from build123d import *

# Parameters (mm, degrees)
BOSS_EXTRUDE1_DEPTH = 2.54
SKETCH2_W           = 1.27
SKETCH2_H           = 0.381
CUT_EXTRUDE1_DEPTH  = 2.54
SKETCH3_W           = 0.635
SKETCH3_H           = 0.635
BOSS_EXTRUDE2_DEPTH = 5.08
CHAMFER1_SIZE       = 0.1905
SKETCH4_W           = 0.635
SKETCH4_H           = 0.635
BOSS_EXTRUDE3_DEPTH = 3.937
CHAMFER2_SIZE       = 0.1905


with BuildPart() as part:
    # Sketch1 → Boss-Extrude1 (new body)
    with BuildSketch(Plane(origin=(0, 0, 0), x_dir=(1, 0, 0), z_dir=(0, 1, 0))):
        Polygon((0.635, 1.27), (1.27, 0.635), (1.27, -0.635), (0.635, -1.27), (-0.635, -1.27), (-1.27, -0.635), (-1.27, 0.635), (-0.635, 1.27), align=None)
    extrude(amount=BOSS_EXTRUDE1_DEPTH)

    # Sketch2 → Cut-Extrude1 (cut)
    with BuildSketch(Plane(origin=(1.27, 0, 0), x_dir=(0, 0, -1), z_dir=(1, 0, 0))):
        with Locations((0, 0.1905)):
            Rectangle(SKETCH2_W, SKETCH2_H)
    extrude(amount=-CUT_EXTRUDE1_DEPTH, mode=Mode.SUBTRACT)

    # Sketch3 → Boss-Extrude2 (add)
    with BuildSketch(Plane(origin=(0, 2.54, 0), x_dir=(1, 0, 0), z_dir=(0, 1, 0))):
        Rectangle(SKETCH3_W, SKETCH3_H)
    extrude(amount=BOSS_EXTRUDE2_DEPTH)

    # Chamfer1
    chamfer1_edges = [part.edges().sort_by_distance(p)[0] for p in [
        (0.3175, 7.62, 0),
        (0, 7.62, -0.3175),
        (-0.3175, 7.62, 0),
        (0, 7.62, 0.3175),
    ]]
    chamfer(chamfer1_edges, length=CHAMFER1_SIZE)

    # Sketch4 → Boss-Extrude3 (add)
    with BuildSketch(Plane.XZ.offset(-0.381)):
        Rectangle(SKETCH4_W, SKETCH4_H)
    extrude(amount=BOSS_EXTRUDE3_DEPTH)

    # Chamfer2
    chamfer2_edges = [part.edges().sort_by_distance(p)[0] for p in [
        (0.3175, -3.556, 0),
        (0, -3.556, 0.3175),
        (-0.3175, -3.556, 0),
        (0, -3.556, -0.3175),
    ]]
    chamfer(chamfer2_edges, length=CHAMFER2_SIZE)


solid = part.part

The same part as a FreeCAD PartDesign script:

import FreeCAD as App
import Part
import Sketcher
from FreeCAD import Vector
Q = App.Units.Quantity


def edges_at(feature, points):
    """Names of the edges that pass closest to the given points."""
    edges = feature.Shape.Edges
    near = lambda p: min(range(len(edges)), key=lambda i: edges[i].distToShape(Part.Vertex(*p))[0])
    return sorted({f"Edge{near(p) + 1}" for p in points})

doc = App.newDocument("Part")
body = doc.addObject("PartDesign::Body", "Body")

# Sketch on XZ plane
sketch1 = doc.addObject("Sketcher::SketchObject", "Sketch")
body.addObject(sketch1)
sketch1.AttachmentSupport = (doc.XZ_Plane, [""])
sketch1.MapMode = "FlatFace"
sketch1.addGeometry([
    Part.LineSegment(Vector(1.3, -0.6, 0), Vector(0.6, -1.3, 0)),  # 0
    Part.LineSegment(Vector(0.6, -1.3, 0), Vector(-0.6, -1.3, 0)),  # 1
    Part.LineSegment(Vector(-0.6, -1.3, 0), Vector(-1.3, -0.6, 0)),  # 2
    Part.LineSegment(Vector(-1.3, -0.6, 0), Vector(-1.3, 0.6, 0)),  # 3
    Part.LineSegment(Vector(-1.3, 0.6, 0), Vector(-0.6, 1.3, 0)),  # 4
    Part.LineSegment(Vector(-0.6, 1.3, 0), Vector(0.6, 1.3, 0)),  # 5
    Part.LineSegment(Vector(0.6, 1.3, 0), Vector(1.3, 0.6, 0)),  # 6
    Part.LineSegment(Vector(1.3, 0.6, 0), Vector(1.3, -0.6, 0)),  # 7
], False)
sketch1.addConstraint([
    Sketcher.Constraint("Coincident", 0, 2, 1, 1),
    Sketcher.Constraint("Coincident", 1, 2, 2, 1),
    Sketcher.Constraint("Coincident", 2, 2, 3, 1),
    Sketcher.Constraint("Coincident", 3, 2, 4, 1),
    Sketcher.Constraint("Coincident", 4, 2, 5, 1),
    Sketcher.Constraint("Coincident", 5, 2, 6, 1),
    Sketcher.Constraint("Coincident", 6, 2, 7, 1),
    Sketcher.Constraint("Coincident", 7, 2, 0, 1),
    Sketcher.Constraint("Horizontal", 1),
    Sketcher.Constraint("Vertical", 3),
    Sketcher.Constraint("Horizontal", 5),
    Sketcher.Constraint("Vertical", 7),
    Sketcher.Constraint("Symmetric", 0, 2, 4, 2, -1, 1),
    Sketcher.Constraint("Symmetric", 2, 2, 6, 2, -1, 1),
    Sketcher.Constraint("Perpendicular", 0, 2),
    Sketcher.Constraint("Perpendicular", 2, 4),
    Sketcher.Constraint("Perpendicular", 4, 6),
    Sketcher.Constraint("Horizontal", 3, 2, 6, 2),
    Sketcher.Constraint("Vertical", 1, 2, 4, 2),
    Sketcher.Constraint("Equal", 5, 3),
    Sketcher.Constraint("DistanceX", 1, 2, 1, 1, Q("0.05 in")),
    Sketcher.Constraint("DistanceY", 1, 2, 4, 2, Q("0.1 in")),
])
pad1 = doc.addObject("PartDesign::Pad", "Pad")
body.addObject(pad1)
pad1.Profile = sketch1
pad1.Length = Q("0.1 in")
pad1.Reversed = True

# Sketch on YZ plane
sketch2 = doc.addObject("Sketcher::SketchObject", "Sketch001")
body.addObject(sketch2)
sketch2.AttachmentSupport = (doc.YZ_Plane, [""])
sketch2.MapMode = "FlatFace"
sketch2.AttachmentOffset = App.Placement(Vector(0, 0, 0.05 * 25.4), App.Rotation())
sketch2.addGeometry([
    Part.LineSegment(Vector(0.38, 0.64, 0), Vector(0, 0.64, 0)),
    Part.LineSegment(Vector(0, 0.64, 0), Vector(0, -0.64, 0)),
    Part.LineSegment(Vector(0, -0.64, 0), Vector(0.38, -0.64, 0)),
    Part.LineSegment(Vector(0.38, -0.64, 0), Vector(0.38, 0.64, 0)),
], False)
sketch2.addConstraint([
    Sketcher.Constraint("Coincident", 0, 2, 1, 1),
    Sketcher.Constraint("Coincident", 1, 2, 2, 1),
    Sketcher.Constraint("Coincident", 2, 2, 3, 1),
    Sketcher.Constraint("Coincident", 3, 2, 0, 1),
    Sketcher.Constraint("Horizontal", 0),
    Sketcher.Constraint("Vertical", 1),
    Sketcher.Constraint("Horizontal", 2),
    Sketcher.Constraint("Vertical", 3),
    Sketcher.Constraint("Symmetric", 0, 2, 1, 2, -1, 1),
    Sketcher.Constraint("DistanceY", 1, 2, 1, 1, Q("0.05 in")),
    Sketcher.Constraint("DistanceX", 0, 2, 0, 1, Q("0.015 in")),
])
pocket1 = doc.addObject("PartDesign::Pocket", "Pocket")
body.addObject(pocket1)
pocket1.Profile = sketch2
pocket1.Length = Q("0.1 in")

# Sketch on XZ plane
sketch3 = doc.addObject("Sketcher::SketchObject", "Sketch002")
body.addObject(sketch3)
sketch3.AttachmentSupport = (doc.XZ_Plane, [""])
sketch3.MapMode = "FlatFace"
sketch3.AttachmentOffset = App.Placement(Vector(0, 0, -0.1 * 25.4), App.Rotation())
sketch3.addGeometry([
    Part.LineSegment(Vector(-0.3, -0.3, 0), Vector(-0.3, 0.3, 0)),
    Part.LineSegment(Vector(-0.3, 0.3, 0), Vector(0.3, 0.3, 0)),
    Part.LineSegment(Vector(0.3, 0.3, 0), Vector(0.3, -0.3, 0)),
    Part.LineSegment(Vector(0.3, -0.3, 0), Vector(-0.3, -0.3, 0)),
], False)
sketch3.addConstraint([
    Sketcher.Constraint("Coincident", 0, 2, 1, 1),
    Sketcher.Constraint("Coincident", 1, 2, 2, 1),
    Sketcher.Constraint("Coincident", 2, 2, 3, 1),
    Sketcher.Constraint("Coincident", 3, 2, 0, 1),
    Sketcher.Constraint("Vertical", 0),
    Sketcher.Constraint("Horizontal", 1),
    Sketcher.Constraint("Vertical", 2),
    Sketcher.Constraint("Horizontal", 3),
    Sketcher.Constraint("Symmetric", 0, 2, 2, 2, -1, 1),
    Sketcher.Constraint("Equal", 3, 0),
    Sketcher.Constraint("DistanceX", 1, 1, 1, 2, Q("0.025 in")),
])
pad2 = doc.addObject("PartDesign::Pad", "Pad001")
body.addObject(pad2)
pad2.Profile = sketch3
pad2.Length = Q("0.2 in")
pad2.Reversed = True
doc.recompute()

chamfer = doc.addObject("PartDesign::Chamfer", "Chamfer")
body.addObject(chamfer)
chamfer.Base = (pad2, edges_at(pad2, [
    (0.318, 7.62, 0),
    (0, 7.62, -0.318),
    (-0.318, 7.62, 0),
    (0, 7.62, 0.318),
]))
chamfer.Size = Q("0.0075 in")

# Sketch on XZ plane
sketch4 = doc.addObject("Sketcher::SketchObject", "Sketch003")
body.addObject(sketch4)
sketch4.AttachmentSupport = (doc.XZ_Plane, [""])
sketch4.MapMode = "FlatFace"
sketch4.AttachmentOffset = App.Placement(Vector(0, 0, -0.015 * 25.4), App.Rotation())
sketch4.addGeometry([
    Part.LineSegment(Vector(-0.3, 0.3, 0), Vector(-0.3, -0.3, 0)),
    Part.LineSegment(Vector(-0.3, -0.3, 0), Vector(0.3, -0.3, 0)),
    Part.LineSegment(Vector(0.3, -0.3, 0), Vector(0.3, 0.3, 0)),
    Part.LineSegment(Vector(0.3, 0.3, 0), Vector(-0.3, 0.3, 0)),
], False)
sketch4.addConstraint([
    Sketcher.Constraint("Coincident", 0, 2, 1, 1),
    Sketcher.Constraint("Coincident", 1, 2, 2, 1),
    Sketcher.Constraint("Coincident", 2, 2, 3, 1),
    Sketcher.Constraint("Coincident", 3, 2, 0, 1),
    Sketcher.Constraint("Vertical", 0),
    Sketcher.Constraint("Horizontal", 1),
    Sketcher.Constraint("Vertical", 2),
    Sketcher.Constraint("Horizontal", 3),
    Sketcher.Constraint("Symmetric", 0, 2, 2, 2, -1, 1),
    Sketcher.Constraint("Equal", 3, 0),
    Sketcher.Constraint("DistanceX", 1, 1, 1, 2, Q("0.025 in")),
])
pad3 = doc.addObject("PartDesign::Pad", "Pad002")
body.addObject(pad3)
pad3.Profile = sketch4
pad3.Length = Q("0.155 in")
doc.recompute()

chamfer2 = doc.addObject("PartDesign::Chamfer", "Chamfer001")
body.addObject(chamfer2)
chamfer2.Base = (pad3, edges_at(pad3, [
    (0.318, -3.556, 0),
    (0, -3.556, 0.318),
    (-0.318, -3.556, 0),
    (0, -3.556, -0.318),
]))
chamfer2.Size = Q("0.0075 in")

doc.recompute()
